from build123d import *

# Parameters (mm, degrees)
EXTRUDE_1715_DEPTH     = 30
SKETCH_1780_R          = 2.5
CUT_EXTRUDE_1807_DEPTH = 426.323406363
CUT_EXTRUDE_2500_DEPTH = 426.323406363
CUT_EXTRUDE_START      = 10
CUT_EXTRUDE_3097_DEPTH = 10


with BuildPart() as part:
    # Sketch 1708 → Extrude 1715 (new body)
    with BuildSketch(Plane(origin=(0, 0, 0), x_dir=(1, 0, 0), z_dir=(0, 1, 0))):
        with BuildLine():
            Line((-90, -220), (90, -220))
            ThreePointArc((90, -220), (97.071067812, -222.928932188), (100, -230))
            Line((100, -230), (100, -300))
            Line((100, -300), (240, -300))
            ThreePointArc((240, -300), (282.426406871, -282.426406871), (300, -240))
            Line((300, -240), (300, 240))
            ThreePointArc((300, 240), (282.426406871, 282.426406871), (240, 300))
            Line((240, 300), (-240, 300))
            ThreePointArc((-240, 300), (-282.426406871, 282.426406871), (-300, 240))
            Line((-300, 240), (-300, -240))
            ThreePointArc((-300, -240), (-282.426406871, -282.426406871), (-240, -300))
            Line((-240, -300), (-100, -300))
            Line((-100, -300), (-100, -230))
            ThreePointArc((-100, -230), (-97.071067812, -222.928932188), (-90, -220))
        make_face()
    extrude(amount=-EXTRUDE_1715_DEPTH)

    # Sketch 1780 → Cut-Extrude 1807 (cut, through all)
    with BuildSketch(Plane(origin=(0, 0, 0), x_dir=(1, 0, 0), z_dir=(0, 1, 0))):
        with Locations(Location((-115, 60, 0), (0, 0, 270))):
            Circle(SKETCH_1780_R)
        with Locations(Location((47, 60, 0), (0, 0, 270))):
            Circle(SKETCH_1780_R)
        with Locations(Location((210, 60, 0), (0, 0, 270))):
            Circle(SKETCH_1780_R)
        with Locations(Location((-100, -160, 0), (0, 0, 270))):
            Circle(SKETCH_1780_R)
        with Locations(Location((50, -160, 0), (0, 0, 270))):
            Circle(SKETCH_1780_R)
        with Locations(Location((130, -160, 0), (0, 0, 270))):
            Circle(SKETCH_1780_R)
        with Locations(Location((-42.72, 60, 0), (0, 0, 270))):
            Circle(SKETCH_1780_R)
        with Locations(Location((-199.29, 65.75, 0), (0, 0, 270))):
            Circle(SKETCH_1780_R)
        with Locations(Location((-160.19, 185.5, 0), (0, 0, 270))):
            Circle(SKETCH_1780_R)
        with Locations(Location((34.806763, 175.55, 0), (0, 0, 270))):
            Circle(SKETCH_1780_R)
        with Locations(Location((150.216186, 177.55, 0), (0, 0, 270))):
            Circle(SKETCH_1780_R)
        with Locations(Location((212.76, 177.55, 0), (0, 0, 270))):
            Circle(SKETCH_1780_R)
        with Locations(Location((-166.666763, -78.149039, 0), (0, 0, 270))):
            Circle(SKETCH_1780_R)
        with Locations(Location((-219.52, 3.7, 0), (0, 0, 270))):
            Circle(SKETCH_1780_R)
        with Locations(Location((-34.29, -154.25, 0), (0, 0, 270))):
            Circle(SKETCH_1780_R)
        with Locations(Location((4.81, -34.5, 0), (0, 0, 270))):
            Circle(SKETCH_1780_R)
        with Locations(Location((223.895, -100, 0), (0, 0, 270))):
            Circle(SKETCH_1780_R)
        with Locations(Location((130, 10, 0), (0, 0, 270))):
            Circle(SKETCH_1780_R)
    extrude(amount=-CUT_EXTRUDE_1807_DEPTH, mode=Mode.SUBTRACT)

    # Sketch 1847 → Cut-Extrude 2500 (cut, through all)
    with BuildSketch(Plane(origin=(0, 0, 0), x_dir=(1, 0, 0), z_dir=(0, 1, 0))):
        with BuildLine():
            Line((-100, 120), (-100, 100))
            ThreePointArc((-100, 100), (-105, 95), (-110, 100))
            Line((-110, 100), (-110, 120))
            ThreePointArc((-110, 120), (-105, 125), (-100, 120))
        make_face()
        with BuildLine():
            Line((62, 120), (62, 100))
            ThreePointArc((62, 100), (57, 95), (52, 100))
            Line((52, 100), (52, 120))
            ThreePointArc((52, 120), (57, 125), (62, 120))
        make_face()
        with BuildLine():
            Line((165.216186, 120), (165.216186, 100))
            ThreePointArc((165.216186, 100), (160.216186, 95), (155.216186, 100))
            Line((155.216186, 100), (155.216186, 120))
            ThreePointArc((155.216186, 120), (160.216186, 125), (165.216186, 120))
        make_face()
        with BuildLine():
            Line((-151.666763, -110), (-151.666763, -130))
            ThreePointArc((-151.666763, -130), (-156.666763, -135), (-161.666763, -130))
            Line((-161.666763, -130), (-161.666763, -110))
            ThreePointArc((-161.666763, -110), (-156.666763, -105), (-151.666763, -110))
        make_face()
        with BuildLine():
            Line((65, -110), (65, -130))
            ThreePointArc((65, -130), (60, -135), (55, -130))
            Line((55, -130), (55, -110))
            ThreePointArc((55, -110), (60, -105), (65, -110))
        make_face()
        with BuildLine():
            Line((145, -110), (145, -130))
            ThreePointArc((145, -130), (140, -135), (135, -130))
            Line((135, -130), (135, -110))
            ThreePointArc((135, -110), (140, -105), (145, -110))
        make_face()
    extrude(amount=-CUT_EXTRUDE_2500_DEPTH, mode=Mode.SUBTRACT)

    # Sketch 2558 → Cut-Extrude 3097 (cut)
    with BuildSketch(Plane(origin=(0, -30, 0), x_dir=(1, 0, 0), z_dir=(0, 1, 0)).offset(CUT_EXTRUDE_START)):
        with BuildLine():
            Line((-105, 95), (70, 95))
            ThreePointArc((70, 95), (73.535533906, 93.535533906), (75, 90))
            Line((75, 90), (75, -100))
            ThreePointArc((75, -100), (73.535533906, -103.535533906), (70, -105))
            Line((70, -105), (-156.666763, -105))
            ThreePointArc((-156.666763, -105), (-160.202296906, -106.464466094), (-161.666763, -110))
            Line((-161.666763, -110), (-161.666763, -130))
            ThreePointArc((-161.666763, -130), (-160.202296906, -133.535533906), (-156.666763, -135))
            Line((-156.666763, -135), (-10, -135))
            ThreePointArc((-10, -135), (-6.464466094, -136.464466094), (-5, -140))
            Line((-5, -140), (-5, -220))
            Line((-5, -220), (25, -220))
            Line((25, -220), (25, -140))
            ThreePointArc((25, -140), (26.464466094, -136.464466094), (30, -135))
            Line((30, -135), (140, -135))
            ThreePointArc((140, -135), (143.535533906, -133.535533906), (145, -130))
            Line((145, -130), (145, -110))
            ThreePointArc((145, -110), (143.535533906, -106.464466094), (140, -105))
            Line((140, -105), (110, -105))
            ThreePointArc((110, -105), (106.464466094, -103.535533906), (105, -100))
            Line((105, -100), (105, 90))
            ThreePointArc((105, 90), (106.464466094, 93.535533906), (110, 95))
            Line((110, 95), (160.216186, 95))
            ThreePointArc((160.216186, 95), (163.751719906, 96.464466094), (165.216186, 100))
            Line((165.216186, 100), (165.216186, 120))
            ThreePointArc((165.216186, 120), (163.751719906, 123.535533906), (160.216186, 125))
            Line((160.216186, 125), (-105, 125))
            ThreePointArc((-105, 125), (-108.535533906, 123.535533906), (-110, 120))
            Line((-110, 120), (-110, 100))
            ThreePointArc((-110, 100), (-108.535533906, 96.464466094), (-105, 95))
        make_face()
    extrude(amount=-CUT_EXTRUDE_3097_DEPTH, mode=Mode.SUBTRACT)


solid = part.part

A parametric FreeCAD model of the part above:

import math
import FreeCAD as App
import Part
import Sketcher

V = App.Vector
Q = App.Units.Quantity

doc = App.newDocument("Part")
body = doc.addObject("PartDesign::Body", "Body")

# Sketch on XZ plane
sketch1 = doc.addObject("Sketcher::SketchObject", "Sketch")
body.addObject(sketch1)
sketch1.AttachmentSupport = (doc.XZ_Plane, [""])
sketch1.MapMode = "FlatFace"
sketch1.addGeometry([
    Part.LineSegment(V(-90, 220, 0), V(90, 220, 0)),  # 0
    Part.ArcOfCircle(Part.Circle(V(90, 230, 0), V(0, 0, 1), 10), math.radians(-90), math.radians(0)),  # 1
    Part.LineSegment(V(100, 230, 0), V(100, 300, 0)),  # 2
    Part.LineSegment(V(100, 300, 0), V(240, 300, 0)),  # 3
    Part.ArcOfCircle(Part.Circle(V(240, 240, 0), V(0, 0, 1), 60), math.radians(0), math.radians(90)),  # 4
    Part.LineSegment(V(300, 240, 0), V(300, -240, 0)),  # 5
    Part.ArcOfCircle(Part.Circle(V(240, -240, 0), V(0, 0, 1), 60), math.radians(-90), math.radians(0)),  # 6
    Part.LineSegment(V(240, -300, 0), V(-240, -300, 0)),  # 7
    Part.ArcOfCircle(Part.Circle(V(-240, -240, 0), V(0, 0, 1), 60), math.radians(-180), math.radians(-90)),  # 8
    Part.LineSegment(V(-300, -240, 0), V(-300, 240, 0)),  # 9
    Part.ArcOfCircle(Part.Circle(V(-240, 240, 0), V(0, 0, 1), 60), math.radians(90), math.radians(180)),  # 10
    Part.LineSegment(V(-240, 300, 0), V(-100, 300, 0)),  # 11
    Part.LineSegment(V(-100, 300, 0), V(-100, 230, 0)),  # 12
    Part.ArcOfCircle(Part.Circle(V(-90, 230, 0), V(0, 0, 1), 10), math.radians(180), math.radians(270)),  # 13
], False)
sketch1.addConstraint([
    Sketcher.Constraint("Tangent", 0, 2, 1, 1),
    Sketcher.Constraint("Tangent", 1, 2, 2, 1),
    Sketcher.Constraint("Coincident", 2, 2, 3, 1),
    Sketcher.Constraint("Tangent", 3, 2, 4, 2),
    Sketcher.Constraint("Tangent", 4, 1, 5, 1),
    Sketcher.Constraint("Tangent", 5, 2, 6, 2),
    Sketcher.Constraint("Tangent", 6, 1, 7, 1),
    Sketcher.Constraint("Tangent", 7, 2, 8, 2),
    Sketcher.Constraint("Tangent", 8, 1, 9, 1),
    Sketcher.Constraint("Tangent", 9, 2, 10, 2),
    Sketcher.Constraint("Tangent", 10, 1, 11, 1),
    Sketcher.Constraint("Coincident", 11, 2, 12, 1),
    Sketcher.Constraint("Tangent", 12, 2, 13, 1),
    Sketcher.Constraint("Tangent", 13, 2, 0, 1),
    Sketcher.Constraint("Horizontal", 0),
    Sketcher.Constraint("Vertical", 2),
    Sketcher.Constraint("Horizontal", 3),
    Sketcher.Constraint("Vertical", 5),
    Sketcher.Constraint("Horizontal", 7),
    Sketcher.Constraint("Vertical", 9),
    Sketcher.Constraint("Horizontal", 11),
    Sketcher.Constraint("Vertical", 12),
    Sketcher.Constraint("Equal", 4, 6),
    Sketcher.Constraint("Equal", 6, 8),
    Sketcher.Constraint("Equal", 8, 10),
    Sketcher.Constraint("Equal", 1, 13),
    Sketcher.Constraint("Symmetric", 4, 3, 8, 3, -1, 1),
    Sketcher.Constraint("Symmetric", 2, 2, 11, 2, -2),
    Sketcher.Constraint("Equal", 7, 5),
    Sketcher.Constraint("Radius", 1, Q("10 mm")),
    Sketcher.Constraint("Radius", 4, Q("60 mm")),
    Sketcher.Constraint("DistanceX", 0, 1, 0, 2, Q("180 mm")),
    Sketcher.Constraint("DistanceX", 3, 1, 3, 2, Q("140 mm")),
    Sketcher.Constraint("DistanceY", 2, 1, 2, 2, Q("70 mm")),
])
pad1 = doc.addObject("PartDesign::Pad", "Pad")
body.addObject(pad1)
pad1.Profile = sketch1
pad1.Length = 30

# Sketch on XZ plane
sketch2 = doc.addObject("Sketcher::SketchObject", "Sketch001")
body.addObject(sketch2)
sketch2.AttachmentSupport = (doc.XZ_Plane, [""])
sketch2.MapMode = "FlatFace"
sketch2.addGeometry([
    Part.Circle(V(-115, -60, 0), V(0, 0, 1), 2.5),  # 0
    Part.Circle(V(47, -60, 0), V(0, 0, 1), 2.5),  # 1
    Part.Circle(V(210, -60, 0), V(0, 0, 1), 2.5),  # 2
    Part.Circle(V(-100, 160, 0), V(0, 0, 1), 2.5),  # 3
    Part.Circle(V(50, 160, 0), V(0, 0, 1), 2.5),  # 4
    Part.Circle(V(130, 160, 0), V(0, 0, 1), 2.5),  # 5
    Part.Circle(V(-42.72, -60, 0), V(0, 0, 1), 2.5),  # 6
    Part.Circle(V(-199.29, -65.75, 0), V(0, 0, 1), 2.5),  # 7
    Part.Circle(V(-160.19, -185.5, 0), V(0, 0, 1), 2.5),  # 8
    Part.Circle(V(34.806763, -175.55, 0), V(0, 0, 1), 2.5),  # 9
    Part.Circle(V(150.216186, -177.55, 0), V(0, 0, 1), 2.5),  # 10
    Part.Circle(V(212.76, -177.55, 0), V(0, 0, 1), 2.5),  # 11
    Part.Circle(V(-166.666763, 78.149039, 0), V(0, 0, 1), 2.5),  # 12
    Part.Circle(V(-219.52, -3.7, 0), V(0, 0, 1), 2.5),  # 13
    Part.Circle(V(-34.29, 154.25, 0), V(0, 0, 1), 2.5),  # 14
    Part.Circle(V(4.81, 34.5, 0), V(0, 0, 1), 2.5),  # 15
    Part.Circle(V(223.895, 100, 0), V(0, 0, 1), 2.5),  # 16
    Part.Circle(V(130, -10, 0), V(0, 0, 1), 2.5),  # 17
], False)
sketch2.addConstraint([
    Sketcher.Constraint("Equal", 0, 1),
    Sketcher.Constraint("Equal", 1, 2),
    Sketcher.Constraint("Equal", 2, 3),
    Sketcher.Constraint("Equal", 3, 4),
    Sketcher.Constraint("Equal", 4, 5),
    Sketcher.Constraint("Equal", 5, 6),
    Sketcher.Constraint("Equal", 6, 7),
    Sketcher.Constraint("Equal", 7, 8),
    Sketcher.Constraint("Equal", 8, 9),
    Sketcher.Constraint("Equal", 9, 10),
    Sketcher.Constraint("Equal", 10, 11),
    Sketcher.Constraint("Equal", 11, 12),
    Sketcher.Constraint("Equal", 12, 13),
    Sketcher.Constraint("Equal", 13, 14),
    Sketcher.Constraint("Equal", 14, 15),
    Sketcher.Constraint("Equal", 15, 16),
    Sketcher.Constraint("Equal", 16, 17),
    Sketcher.Constraint("Horizontal", 0, 3, 1, 3),
    Sketcher.Constraint("Horizontal", 1, 3, 2, 3),
    Sketcher.Constraint("Horizontal", 3, 3, 4, 3),
    Sketcher.Constraint("Horizontal", 4, 3, 5, 3),
    Sketcher.Constraint("Horizontal", 2, 3, 6, 3),
    Sketcher.Constraint("Horizontal", 10, 3, 11, 3),
    Sketcher.Constraint("Vertical", 5, 3, 17, 3),
    Sketcher.Constraint("Diameter", 0, Q("5 mm")),
    Sketcher.Constraint("DistanceX", 0, 3, -1, 1, Q("115 mm")),
    Sketcher.Constraint("DistanceY", 0, 3, -1, 1, Q("60 mm")),
    Sketcher.Constraint("DistanceX", -1, 1, 1, 3, Q("47 mm")),
    Sketcher.Constraint("DistanceX", -1, 1, 2, 3, Q("210 mm")),
    Sketcher.Constraint("DistanceX", 3, 3, -1, 1, Q("100 mm")),
    Sketcher.Constraint("DistanceY", -1, 1, 3, 3, Q("160 mm")),
    Sketcher.Constraint("DistanceX", -1, 1, 4, 3, Q("50 mm")),
    Sketcher.Constraint("DistanceX", -1, 1, 5, 3, Q("130 mm")),
    Sketcher.Constraint("DistanceY", -1, 1, 16, 3, Q("100 mm")),
    Sketcher.Constraint("DistanceY", 17, 3, -1, 1, Q("10 mm")),
    Sketcher.Constraint("DistanceY", 10, 3, 9, 3, Q("2 mm")),
    Sketcher.Constraint("DistanceY", 8, 3, -1, 1, Q("185.5 mm")),
    Sketcher.Constraint("DistanceY", 13, 3, -1, 1, Q("3.7 mm")),
    Sketcher.Constraint("DistanceY", -1, 1, 15, 3, Q("34.5 mm")),
    Sketcher.Constraint("DistanceX", 7, 3, 8, 3, Q("39.1 mm")),
    Sketcher.Constraint("DistanceX", 13, 3, 6, 3, Q("176.8 mm")),
    Sketcher.Constraint("DistanceX", 14, 3, 15, 3, Q("39.1 mm")),
    Sketcher.Constraint("DistanceX", 6, 3, -1, 1, Q("42.72 mm")),
    Sketcher.Constraint("DistanceX", 7, 3, -1, 1, Q("199.29 mm")),
    Sketcher.Constraint("DistanceY", 7, 3, -1, 1, Q("65.75 mm")),
    Sketcher.Constraint("DistanceY", 9, 3, -1, 1, Q("175.55 mm")),
    Sketcher.Constraint("DistanceX", -1, 1, 11, 3, Q("212.76 mm")),
    Sketcher.Constraint("DistanceX", 14, 3, -1, 1, Q("34.29 mm")),
    Sketcher.Constraint("DistanceY", -1, 1, 14, 3, Q("154.25 mm")),
    Sketcher.Constraint("DistanceX", -1, 1, 16, 3, Q("223.895 mm")),
    Sketcher.Constraint("DistanceY", -1, 1, 12, 3, Q("78.149039 mm")),
    Sketcher.Constraint("DistanceX", -1, 1, 9, 3, Q("34.806763 mm")),
    Sketcher.Constraint("DistanceX", -1, 1, 10, 3, Q("150.216186 mm")),
    Sketcher.Constraint("DistanceX", 12, 3, -1, 1, Q("166.666763 mm")),
])
pocket1 = doc.addObject("PartDesign::Pocket", "Pocket")
body.addObject(pocket1)
pocket1.Profile = sketch2
pocket1.Type = "ThroughAll"
pocket1.Reversed = True

# Sketch on XZ plane
sketch3 = doc.addObject("Sketcher::SketchObject", "Sketch002")
body.addObject(sketch3)
sketch3.AttachmentSupport = (doc.XZ_Plane, [""])
sketch3.MapMode = "FlatFace"
sketch3.addGeometry([
    Part.LineSegment(V(-100, -100, 0), V(-100, -120, 0)),  # 0
    Part.ArcOfCircle(Part.Circle(V(-105, -120, 0), V(0, 0, 1), 5), math.radians(180), math.radians(360)),  # 1
    Part.LineSegment(V(-110, -120, 0), V(-110, -100, 0)),  # 2
    Part.ArcOfCircle(Part.Circle(V(-105, -100, 0), V(0, 0, 1), 5), math.radians(0), math.radians(180)),  # 3
    Part.LineSegment(V(62, -100, 0), V(62, -120, 0)),  # 4
    Part.ArcOfCircle(Part.Circle(V(57, -120, 0), V(0, 0, 1), 5), math.radians(180), math.radians(360)),  # 5
    Part.LineSegment(V(52, -120, 0), V(52, -100, 0)),  # 6
    Part.ArcOfCircle(Part.Circle(V(57, -100, 0), V(0, 0, 1), 5), math.radians(0), math.radians(180)),  # 7
    Part.LineSegment(V(165.216186, -100, 0), V(165.216186, -120, 0)),  # 8
    Part.ArcOfCircle(Part.Circle(V(160.216186, -120, 0), V(0, 0, 1), 5), math.radians(180), math.radians(360)),  # 9
    Part.LineSegment(V(155.216186, -120, 0), V(155.216186, -100, 0)),  # 10
    Part.ArcOfCircle(Part.Circle(V(160.216186, -100, 0), V(0, 0, 1), 5), math.radians(0), math.radians(180)),  # 11
    Part.LineSegment(V(-151.666763, 130, 0), V(-151.666763, 110, 0)),  # 12
    Part.ArcOfCircle(Part.Circle(V(-156.666763, 110, 0), V(0, 0, 1), 5), math.radians(180), math.radians(360)),  # 13
    Part.LineSegment(V(-161.666763, 110, 0), V(-161.666763, 130, 0)),  # 14
    Part.ArcOfCircle(Part.Circle(V(-156.666763, 130, 0), V(0, 0, 1), 5), math.radians(0), math.radians(180)),  # 15
    Part.LineSegment(V(65, 130, 0), V(65, 110, 0)),  # 16
    Part.ArcOfCircle(Part.Circle(V(60, 110, 0), V(0, 0, 1), 5), math.radians(180), math.radians(360)),  # 17
    Part.LineSegment(V(55, 110, 0), V(55, 130, 0)),  # 18
    Part.ArcOfCircle(Part.Circle(V(60, 130, 0), V(0, 0, 1), 5), math.radians(0), math.radians(180)),  # 19
    Part.LineSegment(V(145, 130, 0), V(145, 110, 0)),  # 20
    Part.ArcOfCircle(Part.Circle(V(140, 110, 0), V(0, 0, 1), 5), math.radians(180), math.radians(360)),  # 21
    Part.LineSegment(V(135, 110, 0), V(135, 130, 0)),  # 22
    Part.ArcOfCircle(Part.Circle(V(140, 130, 0), V(0, 0, 1), 5), math.radians(0), math.radians(180)),  # 23
], False)
sketch3.addConstraint([
    Sketcher.Constraint("Tangent", 0, 2, 1, 2),
    Sketcher.Constraint("Tangent", 1, 1, 2, 1),
    Sketcher.Constraint("Tangent", 2, 2, 3, 2),
    Sketcher.Constraint("Tangent", 3, 1, 0, 1),
    Sketcher.Constraint("Tangent", 4, 2, 5, 2),
    Sketcher.Constraint("Tangent", 5, 1, 6, 1),
    Sketcher.Constraint("Tangent", 6, 2, 7, 2),
    Sketcher.Constraint("Tangent", 7, 1, 4, 1),
    Sketcher.Constraint("Tangent", 8, 2, 9, 2),
    Sketcher.Constraint("Tangent", 9, 1, 10, 1),
    Sketcher.Constraint("Tangent", 10, 2, 11, 2),
    Sketcher.Constraint("Tangent", 11, 1, 8, 1),
    Sketcher.Constraint("Tangent", 12, 2, 13, 2),
    Sketcher.Constraint("Tangent", 13, 1, 14, 1),
    Sketcher.Constraint("Tangent", 14, 2, 15, 2),
    Sketcher.Constraint("Tangent", 15, 1, 12, 1),
    Sketcher.Constraint("Tangent", 16, 2, 17, 2),
    Sketcher.Constraint("Tangent", 17, 1, 18, 1),
    Sketcher.Constraint("Tangent", 18, 2, 19, 2),
    Sketcher.Constraint("Tangent", 19, 1, 16, 1),
    Sketcher.Constraint("Tangent", 20, 2, 21, 2),
    Sketcher.Constraint("Tangent", 21, 1, 22, 1),
    Sketcher.Constraint("Tangent", 22, 2, 23, 2),
    Sketcher.Constraint("Tangent", 23, 1, 20, 1),
    Sketcher.Constraint("Vertical", 0),
    Sketcher.Constraint("Vertical", 2),
    Sketcher.Constraint("Vertical", 4),
    Sketcher.Constraint("Vertical", 6),
    Sketcher.Constraint("Vertical", 8),
    Sketcher.Constraint("Vertical", 10),
    Sketcher.Constraint("Vertical", 12),
    Sketcher.Constraint("Vertical", 14),
    Sketcher.Constraint("Vertical", 16),
    Sketcher.Constraint("Vertical", 18),
    Sketcher.Constraint("Vertical", 20),
    Sketcher.Constraint("Vertical", 22),
    Sketcher.Constraint("Equal", 3, 5),
    Sketcher.Constraint("Equal", 7, 9),
    Sketcher.Constraint("Equal", 11, 13),
    Sketcher.Constraint("Equal", 15, 17),
    Sketcher.Constraint("Equal", 19, 21),
    Sketcher.Constraint("Horizontal", 1, 3, 5, 3),
    Sketcher.Constraint("Horizontal", 3, 3, 7, 3),
    Sketcher.Constraint("Horizontal", 5, 3, 9, 3),
    Sketcher.Constraint("Horizontal", 7, 3, 11, 3),
    Sketcher.Constraint("Horizontal", 13, 3, 17, 3),
    Sketcher.Constraint("Horizontal", 15, 3, 19, 3),
    Sketcher.Constraint("Horizontal", 17, 3, 21, 3),
    Sketcher.Constraint("Horizontal", 19, 3, 23, 3),
    Sketcher.Constraint("Equal", 10, 12),
    Sketcher.Constraint("Radius", 1, Q("5 mm")),
    Sketcher.Constraint("DistanceY", 0, 2, 0, 1, Q("20 mm")),
    Sketcher.Constraint("DistanceX", 1, 3, -1, 1, Q("105 mm")),
    Sketcher.Constraint("DistanceY", 1, 3, -1, 1, Q("120 mm")),
    Sketcher.Constraint("DistanceX", -1, 1, 5, 3, Q("57 mm")),
    Sketcher.Constraint("DistanceY", -1, 1, 13, 3, Q("110 mm")),
    Sketcher.Constraint("DistanceX", -1, 1, 17, 3, Q("60 mm")),
    Sketcher.Constraint("DistanceX", -1, 1, 21, 3, Q("140 mm")),
    Sketcher.Constraint("DistanceX", 13, 3, 11, 3, Q("316.882949 mm")),
    Sketcher.Constraint("DistanceX", -1, 1, 9, 3, Q("160.216186 mm")),
])
pocket2 = doc.addObject("PartDesign::Pocket", "Pocket001")
body.addObject(pocket2)
pocket2.Profile = sketch3
pocket2.Type = "ThroughAll"
pocket2.Reversed = True

# Sketch on XZ plane
sketch4 = doc.addObject("Sketcher::SketchObject", "Sketch003")
body.addObject(sketch4)
sketch4.AttachmentSupport = (doc.XZ_Plane, [""])
sketch4.MapMode = "FlatFace"
sketch4.AttachmentOffset = App.Placement(V(0, 0, 20), App.Rotation())
sketch4.addGeometry([
    Part.LineSegment(V(-105, -95, 0), V(70, -95, 0)),  # 0
    Part.ArcOfCircle(Part.Circle(V(70, -90, 0), V(0, 0, 1), 5), math.radians(-90), math.radians(0)),  # 1
    Part.LineSegment(V(75, -90, 0), V(75, 100, 0)),  # 2
    Part.ArcOfCircle(Part.Circle(V(70, 100, 0), V(0, 0, 1), 5), math.radians(0), math.radians(90)),  # 3
    Part.LineSegment(V(70, 105, 0), V(-156.666763, 105, 0)),  # 4
    Part.ArcOfCircle(Part.Circle(V(-156.666763, 110, 0), V(0, 0, 1), 5), math.radians(180), math.radians(270)),  # 5
    Part.LineSegment(V(-161.666763, 110, 0), V(-161.666763, 130, 0)),  # 6
    Part.ArcOfCircle(Part.Circle(V(-156.666763, 130, 0), V(0, 0, 1), 5), math.radians(90), math.radians(180)),  # 7
    Part.LineSegment(V(-156.666763, 135, 0), V(-10, 135, 0)),  # 8
    Part.ArcOfCircle(Part.Circle(V(-10, 140, 0), V(0, 0, 1), 5), math.radians(-90), math.radians(0)),  # 9
    Part.LineSegment(V(-5, 140, 0), V(-5, 220, 0)),  # 10
    Part.LineSegment(V(-5, 220, 0), V(25, 220, 0)),  # 11
    Part.LineSegment(V(25, 220, 0), V(25, 140, 0)),  # 12
    Part.ArcOfCircle(Part.Circle(V(30, 140, 0), V(0, 0, 1), 5), math.radians(180), math.radians(270)),  # 13
    Part.LineSegment(V(30, 135, 0), V(140, 135, 0)),  # 14
    Part.ArcOfCircle(Part.Circle(V(140, 130, 0), V(0, 0, 1), 5), math.radians(0), math.radians(90)),  # 15
    Part.LineSegment(V(145, 130, 0), V(145, 110, 0)),  # 16
    Part.ArcOfCircle(Part.Circle(V(140, 110, 0), V(0, 0, 1), 5), math.radians(-90), math.radians(0)),  # 17
    Part.LineSegment(V(140, 105, 0), V(110, 105, 0)),  # 18
    Part.ArcOfCircle(Part.Circle(V(110, 100, 0), V(0, 0, 1), 5), math.radians(90), math.radians(180)),  # 19
    Part.LineSegment(V(105, 100, 0), V(105, -90, 0)),  # 20
    Part.ArcOfCircle(Part.Circle(V(110, -90, 0), V(0, 0, 1), 5), math.radians(180), math.radians(270)),  # 21
    Part.LineSegment(V(110, -95, 0), V(160.216186, -95, 0)),  # 22
    Part.ArcOfCircle(Part.Circle(V(160.216186, -100, 0), V(0, 0, 1), 5), math.radians(0), math.radians(90)),  # 23
    Part.LineSegment(V(165.216186, -100, 0), V(165.216186, -120, 0)),  # 24
    Part.ArcOfCircle(Part.Circle(V(160.216186, -120, 0), V(0, 0, 1), 5), math.radians(-90), math.radians(0)),  # 25
    Part.LineSegment(V(160.216186, -125, 0), V(-105, -125, 0)),  # 26
    Part.ArcOfCircle(Part.Circle(V(-105, -120, 0), V(0, 0, 1), 5), math.radians(180), math.radians(270)),  # 27
    Part.LineSegment(V(-110, -120, 0), V(-110, -100, 0)),  # 28
    Part.ArcOfCircle(Part.Circle(V(-105, -100, 0), V(0, 0, 1), 5), math.radians(90), math.radians(180)),  # 29
], False)
sketch4.addConstraint([
    Sketcher.Constraint("Tangent", 0, 2, 1, 1),
    Sketcher.Constraint("Tangent", 1, 2, 2, 1),
    Sketcher.Constraint("Tangent", 2, 2, 3, 1),
    Sketcher.Constraint("Tangent", 3, 2, 4, 1),
    Sketcher.Constraint("Tangent", 4, 2, 5, 2),
    Sketcher.Constraint("Tangent", 5, 1, 6, 1),
    Sketcher.Constraint("Tangent", 6, 2, 7, 2),
    Sketcher.Constraint("Tangent", 7, 1, 8, 1),
    Sketcher.Constraint("Tangent", 8, 2, 9, 1),
    Sketcher.Constraint("Tangent", 9, 2, 10, 1),
    Sketcher.Constraint("Coincident", 10, 2, 11, 1),
    Sketcher.Constraint("Coincident", 11, 2, 12, 1),
    Sketcher.Constraint("Tangent", 12, 2, 13, 1),
    Sketcher.Constraint("Tangent", 13, 2, 14, 1),
    Sketcher.Constraint("Tangent", 14, 2, 15, 2),
    Sketcher.Constraint("Tangent", 15, 1, 16, 1),
    Sketcher.Constraint("Tangent", 16, 2, 17, 2),
    Sketcher.Constraint("Tangent", 17, 1, 18, 1),
    Sketcher.Constraint("Tangent", 18, 2, 19, 1),
    Sketcher.Constraint("Tangent", 19, 2, 20, 1),
    Sketcher.Constraint("Tangent", 20, 2, 21, 1),
    Sketcher.Constraint("Tangent", 21, 2, 22, 1),
    Sketcher.Constraint("Tangent", 22, 2, 23, 2),
    Sketcher.Constraint("Tangent", 23, 1, 24, 1),
    Sketcher.Constraint("Tangent", 24, 2, 25, 2),
    Sketcher.Constraint("Tangent", 25, 1, 26, 1),
    Sketcher.Constraint("Tangent", 26, 2, 27, 2),
    Sketcher.Constraint("Tangent", 27, 1, 28, 1),
    Sketcher.Constraint("Tangent", 28, 2, 29, 2),
    Sketcher.Constraint("Tangent", 29, 1, 0, 1),
    Sketcher.Constraint("Horizontal", 0),
    Sketcher.Constraint("Vertical", 2),
    Sketcher.Constraint("Horizontal", 4),
    Sketcher.Constraint("Vertical", 6),
    Sketcher.Constraint("Horizontal", 8),
    Sketcher.Constraint("Vertical", 10),
    Sketcher.Constraint("Horizontal", 11),
    Sketcher.Constraint("Vertical", 12),
    Sketcher.Constraint("Horizontal", 14),
    Sketcher.Constraint("Vertical", 16),
    Sketcher.Constraint("Horizontal", 18),
    Sketcher.Constraint("Vertical", 20),
    Sketcher.Constraint("Horizontal", 22),
    Sketcher.Constraint("Vertical", 24),
    Sketcher.Constraint("Horizontal", 26),
    Sketcher.Constraint("Vertical", 28),
    Sketcher.Constraint("Equal", 1, 3),
    Sketcher.Constraint("Equal", 3, 5),
    Sketcher.Constraint("Equal", 5, 7),
    Sketcher.Constraint("Equal", 7, 9),
    Sketcher.Constraint("Equal", 9, 13),
    Sketcher.Constraint("Equal", 13, 15),
    Sketcher.Constraint("Equal", 15, 17),
    Sketcher.Constraint("Equal", 17, 19),
    Sketcher.Constraint("Equal", 19, 21),
    Sketcher.Constraint("Equal", 21, 23),
    Sketcher.Constraint("Equal", 23, 25),
    Sketcher.Constraint("Equal", 25, 27),
    Sketcher.Constraint("Equal", 27, 29),
    Sketcher.Constraint("Horizontal", 9, 3, 13, 3),
    Sketcher.Constraint("Horizontal", 5, 3, 17, 3),
    Sketcher.Constraint("Horizontal", 1, 3, 21, 3),
    Sketcher.Constraint("Equal", 11, 18),
    Sketcher.Constraint("Equal", 16, 24),
    Sketcher.Constraint("Radius", 1, Q("5 mm")),
    Sketcher.Constraint("DistanceX", 0, 1, 0, 2, Q("175 mm")),
    Sketcher.Constraint("DistanceX", 11, 1, 11, 2, Q("30 mm")),
    Sketcher.Constraint("DistanceX", 14, 1, 14, 2, Q("110 mm")),
    Sketcher.Constraint("DistanceY", 2, 1, 2, 2, Q("190 mm")),
    Sketcher.Constraint("DistanceY", 6, 1, 6, 2, Q("20 mm")),
    Sketcher.Constraint("DistanceY", 10, 1, 10, 2, Q("80 mm")),
    Sketcher.Constraint("DistanceX", -1, 1, 1, 3, Q("70 mm")),
    Sketcher.Constraint("DistanceY", 1, 3, -1, 1, Q("90 mm")),
    Sketcher.Constraint("DistanceX", 9, 3, -1, 1, Q("10 mm")),
    Sketcher.Constraint("DistanceX", 4, 2, 4, 1, Q("226.666763 mm")),
    Sketcher.Constraint("DistanceX", 22, 1, 22, 2, Q("50.216186 mm")),
])
pocket3 = doc.addObject("PartDesign::Pocket", "Pocket002")
body.addObject(pocket3)
pocket3.Profile = sketch4
pocket3.Length = 10
pocket3.Reversed = True

doc.recompute()
